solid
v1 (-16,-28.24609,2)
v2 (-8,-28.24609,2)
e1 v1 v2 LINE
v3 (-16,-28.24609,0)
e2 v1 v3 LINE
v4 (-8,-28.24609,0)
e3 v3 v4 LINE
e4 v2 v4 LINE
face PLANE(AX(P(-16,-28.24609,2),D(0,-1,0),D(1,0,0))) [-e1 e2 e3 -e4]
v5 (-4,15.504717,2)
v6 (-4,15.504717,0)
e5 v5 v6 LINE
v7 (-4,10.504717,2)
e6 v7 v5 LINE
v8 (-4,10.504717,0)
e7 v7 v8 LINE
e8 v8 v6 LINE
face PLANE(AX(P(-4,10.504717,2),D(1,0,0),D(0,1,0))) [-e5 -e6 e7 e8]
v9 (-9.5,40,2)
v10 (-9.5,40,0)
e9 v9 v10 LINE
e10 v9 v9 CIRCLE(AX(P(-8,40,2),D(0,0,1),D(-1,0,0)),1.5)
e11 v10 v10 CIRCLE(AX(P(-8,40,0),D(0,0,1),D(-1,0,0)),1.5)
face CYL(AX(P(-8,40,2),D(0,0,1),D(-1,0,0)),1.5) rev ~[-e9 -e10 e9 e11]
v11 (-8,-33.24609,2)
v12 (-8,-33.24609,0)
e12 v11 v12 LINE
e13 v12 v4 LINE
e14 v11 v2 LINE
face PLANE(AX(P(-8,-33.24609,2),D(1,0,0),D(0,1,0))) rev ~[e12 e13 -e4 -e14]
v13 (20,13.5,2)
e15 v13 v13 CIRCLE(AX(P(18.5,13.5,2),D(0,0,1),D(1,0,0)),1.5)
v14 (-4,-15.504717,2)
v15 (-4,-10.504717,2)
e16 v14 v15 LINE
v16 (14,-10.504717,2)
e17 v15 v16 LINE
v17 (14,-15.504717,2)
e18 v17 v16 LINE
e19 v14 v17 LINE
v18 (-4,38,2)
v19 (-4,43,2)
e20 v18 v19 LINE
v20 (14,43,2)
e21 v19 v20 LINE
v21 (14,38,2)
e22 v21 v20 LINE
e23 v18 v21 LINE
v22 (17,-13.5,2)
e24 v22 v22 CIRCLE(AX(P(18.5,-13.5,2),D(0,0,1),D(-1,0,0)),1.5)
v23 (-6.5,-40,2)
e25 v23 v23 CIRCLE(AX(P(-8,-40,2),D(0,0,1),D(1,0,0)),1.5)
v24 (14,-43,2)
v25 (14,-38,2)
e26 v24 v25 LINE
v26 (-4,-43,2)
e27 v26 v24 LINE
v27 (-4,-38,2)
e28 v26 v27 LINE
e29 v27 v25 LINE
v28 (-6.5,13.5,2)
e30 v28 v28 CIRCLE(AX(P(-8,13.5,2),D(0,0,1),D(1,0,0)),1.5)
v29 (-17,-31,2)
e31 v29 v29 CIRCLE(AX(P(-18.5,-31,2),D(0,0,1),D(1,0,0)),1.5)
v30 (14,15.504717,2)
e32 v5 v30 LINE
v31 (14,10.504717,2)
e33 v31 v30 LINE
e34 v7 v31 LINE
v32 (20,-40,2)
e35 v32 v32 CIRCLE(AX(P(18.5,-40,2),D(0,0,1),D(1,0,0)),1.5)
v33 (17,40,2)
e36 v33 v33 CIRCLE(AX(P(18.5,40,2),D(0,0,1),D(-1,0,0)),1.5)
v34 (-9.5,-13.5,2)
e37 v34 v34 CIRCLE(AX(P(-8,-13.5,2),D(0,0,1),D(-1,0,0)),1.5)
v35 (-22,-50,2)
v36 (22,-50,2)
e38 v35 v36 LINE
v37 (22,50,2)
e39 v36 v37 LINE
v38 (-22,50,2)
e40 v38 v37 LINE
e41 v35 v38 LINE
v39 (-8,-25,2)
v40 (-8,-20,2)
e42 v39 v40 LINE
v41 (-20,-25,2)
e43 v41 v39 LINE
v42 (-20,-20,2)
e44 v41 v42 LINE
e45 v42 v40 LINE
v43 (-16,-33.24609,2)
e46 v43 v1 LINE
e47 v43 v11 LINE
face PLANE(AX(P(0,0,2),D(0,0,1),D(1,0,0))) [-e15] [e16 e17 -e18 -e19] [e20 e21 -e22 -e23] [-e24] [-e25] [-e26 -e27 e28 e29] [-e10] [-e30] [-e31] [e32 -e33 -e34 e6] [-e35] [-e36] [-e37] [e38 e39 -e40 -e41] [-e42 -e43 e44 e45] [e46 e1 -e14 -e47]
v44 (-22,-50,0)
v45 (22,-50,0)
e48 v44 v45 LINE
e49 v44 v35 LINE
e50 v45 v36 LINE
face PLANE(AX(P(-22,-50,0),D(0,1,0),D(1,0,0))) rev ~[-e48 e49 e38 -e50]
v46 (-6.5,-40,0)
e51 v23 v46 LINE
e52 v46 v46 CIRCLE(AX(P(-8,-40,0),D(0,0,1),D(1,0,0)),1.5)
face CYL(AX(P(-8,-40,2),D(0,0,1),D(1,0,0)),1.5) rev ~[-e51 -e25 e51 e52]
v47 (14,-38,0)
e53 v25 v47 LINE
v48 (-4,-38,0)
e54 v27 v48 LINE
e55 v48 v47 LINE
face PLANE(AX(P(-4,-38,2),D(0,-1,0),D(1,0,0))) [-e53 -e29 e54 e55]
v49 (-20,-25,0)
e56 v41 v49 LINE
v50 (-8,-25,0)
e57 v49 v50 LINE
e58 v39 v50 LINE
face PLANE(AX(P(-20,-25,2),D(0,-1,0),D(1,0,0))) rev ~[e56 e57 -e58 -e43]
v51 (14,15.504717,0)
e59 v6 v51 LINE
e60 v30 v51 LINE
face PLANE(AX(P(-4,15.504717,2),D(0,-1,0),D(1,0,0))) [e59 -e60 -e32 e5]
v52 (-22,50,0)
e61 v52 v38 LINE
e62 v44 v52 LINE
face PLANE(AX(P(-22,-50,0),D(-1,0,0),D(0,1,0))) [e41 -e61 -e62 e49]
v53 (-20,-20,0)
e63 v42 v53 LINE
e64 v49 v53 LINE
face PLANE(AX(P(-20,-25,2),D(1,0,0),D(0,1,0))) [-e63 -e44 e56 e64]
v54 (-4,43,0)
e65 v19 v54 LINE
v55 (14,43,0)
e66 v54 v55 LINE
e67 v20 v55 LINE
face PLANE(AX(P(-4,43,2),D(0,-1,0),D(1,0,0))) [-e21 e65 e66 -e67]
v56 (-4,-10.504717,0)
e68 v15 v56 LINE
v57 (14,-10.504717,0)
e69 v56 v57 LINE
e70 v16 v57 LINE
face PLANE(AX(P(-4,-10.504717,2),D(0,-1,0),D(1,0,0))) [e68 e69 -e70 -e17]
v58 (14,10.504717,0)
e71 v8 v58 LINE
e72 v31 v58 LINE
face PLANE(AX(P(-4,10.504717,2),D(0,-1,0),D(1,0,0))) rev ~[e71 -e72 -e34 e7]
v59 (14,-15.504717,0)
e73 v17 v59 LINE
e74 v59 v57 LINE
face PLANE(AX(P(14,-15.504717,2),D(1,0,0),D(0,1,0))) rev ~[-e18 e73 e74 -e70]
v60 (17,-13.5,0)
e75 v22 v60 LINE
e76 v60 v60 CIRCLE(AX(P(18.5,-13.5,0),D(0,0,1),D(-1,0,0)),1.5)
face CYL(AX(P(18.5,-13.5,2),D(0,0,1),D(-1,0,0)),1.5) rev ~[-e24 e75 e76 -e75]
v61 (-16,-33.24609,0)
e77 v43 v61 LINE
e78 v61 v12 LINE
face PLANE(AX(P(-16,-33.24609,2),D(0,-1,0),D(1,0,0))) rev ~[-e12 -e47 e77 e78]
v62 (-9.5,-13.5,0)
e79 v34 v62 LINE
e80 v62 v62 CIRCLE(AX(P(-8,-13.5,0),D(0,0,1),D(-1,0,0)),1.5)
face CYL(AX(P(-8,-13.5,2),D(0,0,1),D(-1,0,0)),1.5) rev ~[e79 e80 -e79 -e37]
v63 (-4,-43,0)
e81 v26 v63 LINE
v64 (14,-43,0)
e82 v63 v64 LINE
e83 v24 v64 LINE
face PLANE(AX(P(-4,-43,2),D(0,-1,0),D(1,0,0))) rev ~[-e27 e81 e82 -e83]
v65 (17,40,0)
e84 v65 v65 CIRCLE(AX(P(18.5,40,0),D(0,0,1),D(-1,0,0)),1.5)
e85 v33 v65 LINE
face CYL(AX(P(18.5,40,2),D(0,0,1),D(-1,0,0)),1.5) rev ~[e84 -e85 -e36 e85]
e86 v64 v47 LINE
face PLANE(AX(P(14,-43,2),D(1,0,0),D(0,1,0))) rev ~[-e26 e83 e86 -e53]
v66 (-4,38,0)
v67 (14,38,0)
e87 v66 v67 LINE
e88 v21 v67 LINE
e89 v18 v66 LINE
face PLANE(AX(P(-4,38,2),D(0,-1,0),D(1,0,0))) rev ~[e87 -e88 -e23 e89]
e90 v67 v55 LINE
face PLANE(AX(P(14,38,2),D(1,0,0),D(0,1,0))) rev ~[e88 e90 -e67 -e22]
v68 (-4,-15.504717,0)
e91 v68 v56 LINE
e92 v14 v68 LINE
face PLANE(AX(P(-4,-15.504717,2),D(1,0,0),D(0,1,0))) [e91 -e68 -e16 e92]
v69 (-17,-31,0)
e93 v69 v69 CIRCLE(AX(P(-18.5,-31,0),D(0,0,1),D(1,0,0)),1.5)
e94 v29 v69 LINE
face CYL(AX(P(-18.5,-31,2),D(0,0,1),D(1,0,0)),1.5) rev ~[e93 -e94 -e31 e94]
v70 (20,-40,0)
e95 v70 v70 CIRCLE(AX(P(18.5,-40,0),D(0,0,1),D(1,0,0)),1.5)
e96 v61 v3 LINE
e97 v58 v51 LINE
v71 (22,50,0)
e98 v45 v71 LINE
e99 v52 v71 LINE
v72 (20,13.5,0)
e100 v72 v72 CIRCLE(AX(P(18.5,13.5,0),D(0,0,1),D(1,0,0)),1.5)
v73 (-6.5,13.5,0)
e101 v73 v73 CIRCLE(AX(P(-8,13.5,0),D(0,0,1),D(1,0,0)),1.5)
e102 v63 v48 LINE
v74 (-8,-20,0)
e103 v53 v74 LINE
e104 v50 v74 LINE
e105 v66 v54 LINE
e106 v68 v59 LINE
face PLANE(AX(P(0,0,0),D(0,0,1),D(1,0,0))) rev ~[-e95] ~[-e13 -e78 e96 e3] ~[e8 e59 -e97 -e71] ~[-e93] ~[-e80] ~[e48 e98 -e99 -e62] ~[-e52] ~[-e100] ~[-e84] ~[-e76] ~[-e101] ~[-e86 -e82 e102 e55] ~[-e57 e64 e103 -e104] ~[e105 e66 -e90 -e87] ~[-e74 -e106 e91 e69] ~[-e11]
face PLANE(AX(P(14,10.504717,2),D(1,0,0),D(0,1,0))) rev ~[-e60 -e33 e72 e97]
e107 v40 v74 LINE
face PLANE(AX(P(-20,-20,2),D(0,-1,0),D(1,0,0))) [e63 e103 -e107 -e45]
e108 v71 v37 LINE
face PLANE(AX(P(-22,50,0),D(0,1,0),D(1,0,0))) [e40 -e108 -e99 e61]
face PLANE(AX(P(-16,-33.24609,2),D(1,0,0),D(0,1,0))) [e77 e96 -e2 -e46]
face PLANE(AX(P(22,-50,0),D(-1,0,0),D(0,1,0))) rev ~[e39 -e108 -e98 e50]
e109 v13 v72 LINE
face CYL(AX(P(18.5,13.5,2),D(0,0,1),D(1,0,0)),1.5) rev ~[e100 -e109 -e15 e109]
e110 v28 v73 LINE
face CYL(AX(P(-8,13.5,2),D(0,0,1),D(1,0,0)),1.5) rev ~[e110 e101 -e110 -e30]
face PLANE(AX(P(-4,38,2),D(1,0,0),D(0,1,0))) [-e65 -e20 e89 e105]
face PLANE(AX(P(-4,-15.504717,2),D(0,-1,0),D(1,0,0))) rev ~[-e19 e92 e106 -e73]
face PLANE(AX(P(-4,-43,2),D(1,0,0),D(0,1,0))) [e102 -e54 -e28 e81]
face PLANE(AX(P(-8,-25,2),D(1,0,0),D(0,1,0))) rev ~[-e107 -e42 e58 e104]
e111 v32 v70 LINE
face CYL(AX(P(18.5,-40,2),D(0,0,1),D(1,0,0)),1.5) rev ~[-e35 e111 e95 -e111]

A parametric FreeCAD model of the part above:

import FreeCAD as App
import Part
import Sketcher
from FreeCAD import Vector

doc = App.newDocument("Part")
body = doc.addObject("PartDesign::Body", "Body")

sketch1 = doc.addObject("Sketcher::SketchObject", "Sketch")
body.addObject(sketch1)
sketch1.AttachmentSupport = (doc.XY_Plane, [""])
sketch1.MapMode = "FlatFace"
sketch1.addGeometry([
    Part.LineSegment(Vector(-22, 50, 0), Vector(-22, -50, 0)),
    Part.LineSegment(Vector(-22, -50, 0), Vector(22, -50, 0)),
    Part.LineSegment(Vector(22, -50, 0), Vector(22, 50, 0)),
    Part.LineSegment(Vector(22, 50, 0), Vector(-22, 50, 0)),
], False)
sketch1.addConstraint([
    Sketcher.Constraint("Coincident", 0, 2, 1, 1),
    Sketcher.Constraint("Coincident", 1, 2, 2, 1),
    Sketcher.Constraint("Coincident", 2, 2, 3, 1),
    Sketcher.Constraint("Coincident", 3, 2, 0, 1),
    Sketcher.Constraint("Vertical", 0),
    Sketcher.Constraint("Horizontal", 1),
    Sketcher.Constraint("Vertical", 2),
    Sketcher.Constraint("Horizontal", 3),
    Sketcher.Constraint("Symmetric", 0, 2, 2, 2, -1, 1),
    Sketcher.Constraint("DistanceX", 1, 1, 1, 2, 44.0),
    Sketcher.Constraint("DistanceY", 0, 2, 0, 1, 100.0),
])
pad1 = doc.addObject("PartDesign::Pad", "Pad")
body.addObject(pad1)
pad1.Profile = sketch1
pad1.Length = 2

sketch2 = doc.addObject("Sketcher::SketchObject", "Sketch001")
body.addObject(sketch2)
sketch2.AttachmentSupport = (doc.XY_Plane, [""])
sketch2.MapMode = "FlatFace"
sketch2.AttachmentOffset = App.Placement(Vector(0, 0, 2), App.Rotation())
sketch2.addGeometry([
    Part.Circle(Vector(-8, -40, 0), Vector(0, 0, 1), 1.5),
    Part.Circle(Vector(18.5, -40, 0), Vector(0, 0, 1), 1.5),
    Part.Circle(Vector(18.5, -13.5, 0), Vector(0, 0, 1), 1.5),
    Part.Circle(Vector(-8, -13.5, 0), Vector(0, 0, 1), 1.5),
    Part.Circle(Vector(18.5, 40, 0), Vector(0, 0, 1), 1.5),
    Part.Circle(Vector(-8, 40, 0), Vector(0, 0, 1), 1.5),
    Part.Circle(Vector(18.5, 13.5, 0), Vector(0, 0, 1), 1.5),
    Part.Circle(Vector(-8, 13.5, 0), Vector(0, 0, 1), 1.5),
], False)
sketch2.addConstraint([
    Sketcher.Constraint("Equal", 0, 1),
    Sketcher.Constraint("Equal", 1, 2),
    Sketcher.Constraint("Equal", 2, 3),
    Sketcher.Constraint("Equal", 3, 4),
    Sketcher.Constraint("Equal", 4, 5),
    Sketcher.Constraint("Equal", 5, 6),
    Sketcher.Constraint("Equal", 6, 7),
    Sketcher.Constraint("Symmetric", 1, 3, 4, 3, -1),
    Sketcher.Constraint("Symmetric", 0, 3, 5, 3, -1),
    Sketcher.Constraint("Symmetric", 2, 3, 6, 3, -1),
    Sketcher.Constraint("Symmetric", 3, 3, 7, 3, -1),
    Sketcher.Constraint("Horizontal", 0, 3, 1, 3),
    Sketcher.Constraint("Horizontal", 2, 3, 3, 3),
    Sketcher.Constraint("Vertical", 1, 3, 2, 3),
    Sketcher.Constraint("Vertical", 0, 3, 3, 3),
    Sketcher.Constraint("Diameter", 0, 3.0),
    Sketcher.Constraint("DistanceX", 0, 3, -1, 1, 8.0),
    Sketcher.Constraint("DistanceY", 0, 3, -1, 1, 40.0),
    Sketcher.Constraint("DistanceY", 2, 3, 6, 3, 27.0),
    Sketcher.Constraint("DistanceX", -1, 1, 1, 3, 18.5),
])
pocket1 = doc.addObject("PartDesign::Pocket", "Pocket")
body.addObject(pocket1)
pocket1.Profile = sketch2
pocket1.Length = 2

sketch3 = doc.addObject("Sketcher::SketchObject", "Sketch002")
body.addObject(sketch3)
sketch3.AttachmentSupport = (doc.XY_Plane, [""])
sketch3.MapMode = "FlatFace"
sketch3.AttachmentOffset = App.Placement(Vector(0, 0, 2), App.Rotation())
sketch3.addGeometry([
    Part.LineSegment(Vector(-4, 43, 0), Vector(-4, 38, 0)),
    Part.LineSegment(Vector(-4, 38, 0), Vector(14, 38, 0)),
    Part.LineSegment(Vector(14, 38, 0), Vector(14, 43, 0)),
    Part.LineSegment(Vector(14, 43, 0), Vector(-4, 43, 0)),
    Part.LineSegment(Vector(-4, 16, 0), Vector(-4, 11, 0)),
    Part.LineSegment(Vector(-4, 11, 0), Vector(14, 11, 0)),
    Part.LineSegment(Vector(14, 11, 0), Vector(14, 16, 0)),
    Part.LineSegment(Vector(14, 16, 0), Vector(-4, 16, 0)),
    Part.LineSegment(Vector(-4, -11, 0), Vector(-4, -16, 0)),
    Part.LineSegment(Vector(-4, -16, 0), Vector(14, -16, 0)),
    Part.LineSegment(Vector(14, -16, 0), Vector(14, -11, 0)),
    Part.LineSegment(Vector(14, -11, 0), Vector(-4, -11, 0)),
    Part.LineSegment(Vector(-4, -38, 0), Vector(-4, -43, 0)),
    Part.LineSegment(Vector(-4, -43, 0), Vector(14, -43, 0)),
    Part.LineSegment(Vector(14, -43, 0), Vector(14, -38, 0)),
    Part.LineSegment(Vector(14, -38, 0), Vector(-4, -38, 0)),
], False)
sketch3.addConstraint([
    Sketcher.Constraint("Coincident", 0, 2, 1, 1),
    Sketcher.Constraint("Coincident", 1, 2, 2, 1),
    Sketcher.Constraint("Coincident", 2, 2, 3, 1),
    Sketcher.Constraint("Coincident", 3, 2, 0, 1),
    Sketcher.Constraint("Coincident", 4, 2, 5, 1),
    Sketcher.Constraint("Coincident", 5, 2, 6, 1),
    Sketcher.Constraint("Coincident", 6, 2, 7, 1),
    Sketcher.Constraint("Coincident", 7, 2, 4, 1),
    Sketcher.Constraint("Coincident", 8, 2, 9, 1),
    Sketcher.Constraint("Coincident", 9, 2, 10, 1),
    Sketcher.Constraint("Coincident", 10, 2, 11, 1),
    Sketcher.Constraint("Coincident", 11, 2, 8, 1),
    Sketcher.Constraint("Coincident", 12, 2, 13, 1),
    Sketcher.Constraint("Coincident", 13, 2, 14, 1),
    Sketcher.Constraint("Coincident", 14, 2, 15, 1),
    Sketcher.Constraint("Coincident", 15, 2, 12, 1),
    Sketcher.Constraint("Vertical", 0),
    Sketcher.Constraint("Horizontal", 1),
    Sketcher.Constraint("Vertical", 2),
    Sketcher.Constraint("Horizontal", 3),
    Sketcher.Constraint("Vertical", 4),
    Sketcher.Constraint("Horizontal", 5),
    Sketcher.Constraint("Vertical", 6),
    Sketcher.Constraint("Horizontal", 7),
    Sketcher.Constraint("Vertical", 8),
    Sketcher.Constraint("Horizontal", 9),
    Sketcher.Constraint("Vertical", 10),
    Sketcher.Constraint("Horizontal", 11),
    Sketcher.Constraint("Vertical", 12),
    Sketcher.Constraint("Horizontal", 13),
    Sketcher.Constraint("Vertical", 14),
    Sketcher.Constraint("Horizontal", 15),
    Sketcher.Constraint("Symmetric", 7, 2, 8, 2, -1),
    Sketcher.Constraint("Symmetric", 5, 2, 10, 2, -1),
    Sketcher.Constraint("Symmetric", 3, 2, 12, 2, -1),
    Sketcher.Constraint("Symmetric", 1, 2, 14, 2, -1),
    Sketcher.Constraint("Vertical", 3, 2, 4, 2),
    Sketcher.Constraint("Vertical", 2, 2, 5, 2),
    Sketcher.Constraint("Equal", 2, 4),
    Sketcher.Constraint("DistanceX", 1, 1, 1, 2, 18.0),
    Sketcher.Constraint("DistanceY", 0, 2, 0, 1, 5.0),
    Sketcher.Constraint("DistanceX", 0, 2, -1, 1, 4.0),
    Sketcher.Constraint("DistanceY", -1, 1, 0, 2, 38.0),
    Sketcher.Constraint("DistanceY", -1, 1, 4, 2, 10.504717),
])
pocket2 = doc.addObject("PartDesign::Pocket", "Pocket001")
body.addObject(pocket2)
pocket2.Profile = sketch3
pocket2.Length = 10

sketch4 = doc.addObject("Sketcher::SketchObject", "Sketch003")
body.addObject(sketch4)
sketch4.AttachmentSupport = (doc.XY_Plane, [""])
sketch4.MapMode = "FlatFace"
sketch4.AttachmentOffset = App.Placement(Vector(0, 0, 2), App.Rotation())
sketch4.addGeometry([
    Part.Circle(Vector(-18.5, -31, 0), Vector(0, 0, 1), 1.5),
    Part.LineSegment(Vector(-20, -20, 0), Vector(-20, -25, 0)),
    Part.LineSegment(Vector(-20, -25, 0), Vector(-8, -25, 0)),
    Part.LineSegment(Vector(-8, -25, 0), Vector(-8, -20, 0)),
    Part.LineSegment(Vector(-8, -20, 0), Vector(-20, -20, 0)),
    Part.LineSegment(Vector(-16, -28.2, 0), Vector(-16, -33.2, 0)),
    Part.LineSegment(Vector(-16, -33.2, 0), Vector(-8, -33.2, 0)),
    Part.LineSegment(Vector(-8, -33.2, 0), Vector(-8, -28.2, 0)),
    Part.LineSegment(Vector(-8, -28.2, 0), Vector(-16, -28.2, 0)),
], False)
sketch4.addConstraint([
    Sketcher.Constraint("Coincident", 1, 2, 2, 1),
    Sketcher.Constraint("Coincident", 2, 2, 3, 1),
    Sketcher.Constraint("Coincident", 3, 2, 4, 1),
    Sketcher.Constraint("Coincident", 4, 2, 1, 1),
    Sketcher.Constraint("Coincident", 5, 2, 6, 1),
    Sketcher.Constraint("Coincident", 6, 2, 7, 1),
    Sketcher.Constraint("Coincident", 7, 2, 8, 1),
    Sketcher.Constraint("Coincident", 8, 2, 5, 1),
    Sketcher.Constraint("Vertical", 1),
    Sketcher.Constraint("Horizontal", 2),
    Sketcher.Constraint("Vertical", 3),
    Sketcher.Constraint("Horizontal", 4),
    Sketcher.Constraint("Vertical", 5),
    Sketcher.Constraint("Horizontal", 6),
    Sketcher.Constraint("Vertical", 7),
    Sketcher.Constraint("Horizontal", 8),
    Sketcher.Constraint("Vertical", 3, 2, 6, 2),
    Sketcher.Constraint("Equal", 3, 5),
    Sketcher.Constraint("Diameter", 0, 3.0),
    Sketcher.Constraint("DistanceX", 2, 1, 2, 2, 12.0),
    Sketcher.Constraint("DistanceX", 6, 1, 6, 2, 8.0),
    Sketcher.Constraint("DistanceY", 1, 2, 1, 1, 5.0),
    Sketcher.Constraint("DistanceY", 0, 3, -1, 1, 31.0),
    Sketcher.Constraint("DistanceX", 1, 2, -1, 1, 20.0),
    Sketcher.Constraint("DistanceY", 1, 2, -1, 1, 25.0),
    Sketcher.Constraint("DistanceX", 0, 3, -1, 1, 18.5),
    Sketcher.Constraint("DistanceY", 5, 2, -1, 1, 33.24609),
])
pocket3 = doc.addObject("PartDesign::Pocket", "Pocket002")
body.addObject(pocket3)
pocket3.Profile = sketch4
pocket3.Type = "ThroughAll"

doc.recompute()
